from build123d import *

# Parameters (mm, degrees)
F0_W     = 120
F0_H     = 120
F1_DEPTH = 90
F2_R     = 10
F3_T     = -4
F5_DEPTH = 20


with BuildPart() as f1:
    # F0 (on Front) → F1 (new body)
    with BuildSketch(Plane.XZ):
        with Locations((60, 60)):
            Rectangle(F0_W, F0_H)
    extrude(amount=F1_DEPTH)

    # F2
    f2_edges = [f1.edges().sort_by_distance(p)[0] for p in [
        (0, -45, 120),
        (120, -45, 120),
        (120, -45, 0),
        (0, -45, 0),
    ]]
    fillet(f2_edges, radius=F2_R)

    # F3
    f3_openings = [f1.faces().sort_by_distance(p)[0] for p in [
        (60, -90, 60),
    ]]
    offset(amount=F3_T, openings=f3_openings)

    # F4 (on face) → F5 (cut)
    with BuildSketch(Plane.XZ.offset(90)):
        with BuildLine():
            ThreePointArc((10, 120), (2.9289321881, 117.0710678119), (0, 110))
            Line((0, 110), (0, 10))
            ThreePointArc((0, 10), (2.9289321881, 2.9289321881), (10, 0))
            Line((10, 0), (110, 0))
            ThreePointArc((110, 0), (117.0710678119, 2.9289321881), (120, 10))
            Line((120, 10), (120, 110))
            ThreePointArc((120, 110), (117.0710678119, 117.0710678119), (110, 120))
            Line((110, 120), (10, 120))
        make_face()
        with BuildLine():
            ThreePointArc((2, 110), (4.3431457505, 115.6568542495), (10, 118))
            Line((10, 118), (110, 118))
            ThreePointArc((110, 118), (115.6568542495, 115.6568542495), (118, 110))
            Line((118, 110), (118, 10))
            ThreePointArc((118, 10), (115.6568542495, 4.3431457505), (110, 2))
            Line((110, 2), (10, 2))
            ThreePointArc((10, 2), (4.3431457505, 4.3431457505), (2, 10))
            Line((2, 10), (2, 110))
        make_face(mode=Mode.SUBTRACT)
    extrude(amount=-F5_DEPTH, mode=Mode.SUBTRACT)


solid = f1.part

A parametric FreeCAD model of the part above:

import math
import FreeCAD as App
import Part
import Sketcher
Q = App.Units.Quantity


def edges_at(feature, points):
    """Names of the edges that pass closest to the given points."""
    edges = feature.Shape.Edges
    near = lambda p: min(range(len(edges)), key=lambda i: edges[i].distToShape(Part.Vertex(*p))[0])
    return sorted({f"Edge{near(p) + 1}" for p in points})


def faces_at(feature, points):
    """Names of the faces that lie closest to the given points."""
    faces = feature.Shape.Faces
    near = lambda p: min(range(len(faces)), key=lambda i: faces[i].distToShape(Part.Vertex(*p))[0])
    return sorted({f"Face{near(p) + 1}" for p in points})

doc = App.newDocument("Part")
body = doc.addObject("PartDesign::Body", "Body")

# Sketch on XZ plane
sketch1 = doc.addObject("Sketcher::SketchObject", "Sketch")
body.addObject(sketch1)
sketch1.AttachmentSupport = (doc.XZ_Plane, [""])
sketch1.MapMode = "FlatFace"
sketch1.addGeometry(Part.LineSegment(App.Vector(0, 120, 0), App.Vector(0, 0, 0)), False)
sketch1.addGeometry(Part.LineSegment(App.Vector(0, 0, 0), App.Vector(120, 0, 0)), False)
sketch1.addGeometry(Part.LineSegment(App.Vector(120, 0, 0), App.Vector(120, 120, 0)), False)
sketch1.addGeometry(Part.LineSegment(App.Vector(120, 120, 0), App.Vector(0, 120, 0)), False)
sketch1.addConstraint(Sketcher.Constraint("Coincident", 0, 2, 1, 1))
sketch1.addConstraint(Sketcher.Constraint("Coincident", 1, 2, 2, 1))
sketch1.addConstraint(Sketcher.Constraint("Coincident", 2, 2, 3, 1))
sketch1.addConstraint(Sketcher.Constraint("Coincident", 3, 2, 0, 1))
sketch1.addConstraint(Sketcher.Constraint("Vertical", 0))
sketch1.addConstraint(Sketcher.Constraint("Horizontal", 1))
sketch1.addConstraint(Sketcher.Constraint("Vertical", 2))
sketch1.addConstraint(Sketcher.Constraint("Horizontal", 3))
sketch1.addConstraint(Sketcher.Constraint("Coincident", 0, 2, -1, 1))
sketch1.addConstraint(Sketcher.Constraint("Equal", 3, 0))
sketch1.addConstraint(Sketcher.Constraint("DistanceX", 1, 1, 1, 2, Q("120 mm")))
pad1 = doc.addObject("PartDesign::Pad", "Pad")
body.addObject(pad1)
pad1.Profile = sketch1
pad1.Length = 90
doc.recompute()

fillet = doc.addObject("PartDesign::Fillet", "Fillet")
body.addObject(fillet)
fillet.Base = (pad1, edges_at(pad1, [
    (0, -45, 120),
    (120, -45, 120),
    (120, -45, 0),
    (0, -45, 0),
]))
fillet.Radius = 10
doc.recompute()

thickness = doc.addObject("PartDesign::Thickness", "Thickness")
body.addObject(thickness)
thickness.Base = (fillet, faces_at(fillet, [(60, -90, 60)]))
thickness.Value = 4
thickness.Reversed = True
thickness.Join = "Arc"

# Sketch on XZ plane
sketch2 = doc.addObject("Sketcher::SketchObject", "Sketch001")
body.addObject(sketch2)
sketch2.AttachmentSupport = (doc.XZ_Plane, [""])
sketch2.MapMode = "FlatFace"
sketch2.AttachmentOffset = App.Placement(App.Vector(0, 0, 90), App.Rotation())
sketch2.addGeometry(Part.ArcOfCircle(Part.Circle(App.Vector(10, 110, 0), App.Vector(0, 0, 1), 10), math.radians(90), math.radians(180)), False)
sketch2.addGeometry(Part.LineSegment(App.Vector(0, 110, 0), App.Vector(0, 10, 0)), False)
sketch2.addGeometry(Part.ArcOfCircle(Part.Circle(App.Vector(10, 10, 0), App.Vector(0, 0, 1), 10), math.radians(180), math.radians(270)), False)
sketch2.addGeometry(Part.LineSegment(App.Vector(10, 0, 0), App.Vector(110, 0, 0)), False)
sketch2.addGeometry(Part.ArcOfCircle(Part.Circle(App.Vector(110, 10, 0), App.Vector(0, 0, 1), 10), math.radians(-90), math.radians(0)), False)
sketch2.addGeometry(Part.LineSegment(App.Vector(120, 10, 0), App.Vector(120, 110, 0)), False)
sketch2.addGeometry(Part.ArcOfCircle(Part.Circle(App.Vector(110, 110, 0), App.Vector(0, 0, 1), 10), math.radians(0), math.radians(90)), False)
sketch2.addGeometry(Part.LineSegment(App.Vector(110, 120, 0), App.Vector(10, 120, 0)), False)
sketch2.addGeometry(Part.LineSegment(App.Vector(2, 10, 0), App.Vector(2, 110, 0)), False)
sketch2.addGeometry(Part.ArcOfCircle(Part.Circle(App.Vector(10, 110, 0), App.Vector(0, 0, 1), 8), math.radians(90), math.radians(180)), False)
sketch2.addGeometry(Part.LineSegment(App.Vector(10, 118, 0), App.Vector(110, 118, 0)), False)
sketch2.addGeometry(Part.ArcOfCircle(Part.Circle(App.Vector(110, 110, 0), App.Vector(0, 0, 1), 8), math.radians(0), math.radians(90)), False)
sketch2.addGeometry(Part.LineSegment(App.Vector(118, 110, 0), App.Vector(118, 10, 0)), False)
sketch2.addGeometry(Part.ArcOfCircle(Part.Circle(App.Vector(110, 10, 0), App.Vector(0, 0, 1), 8), math.radians(-90), math.radians(0)), False)
sketch2.addGeometry(Part.LineSegment(App.Vector(110, 2, 0), App.Vector(10, 2, 0)), False)
sketch2.addGeometry(Part.ArcOfCircle(Part.Circle(App.Vector(10, 10, 0), App.Vector(0, 0, 1), 8), math.radians(180), math.radians(270)), False)
sketch2.addConstraint(Sketcher.Constraint("Tangent", 0, 2, 1, 1))
sketch2.addConstraint(Sketcher.Constraint("Tangent", 1, 2, 2, 1))
sketch2.addConstraint(Sketcher.Constraint("Tangent", 2, 2, 3, 1))
sketch2.addConstraint(Sketcher.Constraint("Tangent", 3, 2, 4, 1))
sketch2.addConstraint(Sketcher.Constraint("Tangent", 4, 2, 5, 1))
sketch2.addConstraint(Sketcher.Constraint("Tangent", 5, 2, 6, 1))
sketch2.addConstraint(Sketcher.Constraint("Tangent", 6, 2, 7, 1))
sketch2.addConstraint(Sketcher.Constraint("Tangent", 7, 2, 0, 1))
sketch2.addConstraint(Sketcher.Constraint("Tangent", 8, 2, 9, 2))
sketch2.addConstraint(Sketcher.Constraint("Tangent", 9, 1, 10, 1))
sketch2.addConstraint(Sketcher.Constraint("Tangent", 10, 2, 11, 2))
sketch2.addConstraint(Sketcher.Constraint("Tangent", 11, 1, 12, 1))
sketch2.addConstraint(Sketcher.Constraint("Tangent", 12, 2, 13, 2))
sketch2.addConstraint(Sketcher.Constraint("Tangent", 13, 1, 14, 1))
sketch2.addConstraint(Sketcher.Constraint("Tangent", 14, 2, 15, 2))
sketch2.addConstraint(Sketcher.Constraint("Tangent", 15, 1, 8, 1))
sketch2.addConstraint(Sketcher.Constraint("Vertical", 1))
sketch2.addConstraint(Sketcher.Constraint("Horizontal", 3))
sketch2.addConstraint(Sketcher.Constraint("Vertical", 5))
sketch2.addConstraint(Sketcher.Constraint("Horizontal", 7))
sketch2.addConstraint(Sketcher.Constraint("Vertical", 8))
sketch2.addConstraint(Sketcher.Constraint("Horizontal", 10))
sketch2.addConstraint(Sketcher.Constraint("Vertical", 12))
sketch2.addConstraint(Sketcher.Constraint("Horizontal", 14))
sketch2.addConstraint(Sketcher.Constraint("Coincident", 9, 3, 0, 3))
sketch2.addConstraint(Sketcher.Constraint("Coincident", 11, 3, 6, 3))
sketch2.addConstraint(Sketcher.Constraint("Coincident", 13, 3, 4, 3))
sketch2.addConstraint(Sketcher.Constraint("Equal", 0, 2))
sketch2.addConstraint(Sketcher.Constraint("Equal", 2, 4))
sketch2.addConstraint(Sketcher.Constraint("Equal", 4, 6))
sketch2.addConstraint(Sketcher.Constraint("Equal", 13, 15))
sketch2.addConstraint(Sketcher.Constraint("PointOnObject", 0, 2, -2))
sketch2.addConstraint(Sketcher.Constraint("PointOnObject", 2, 2, -1))
sketch2.addConstraint(Sketcher.Constraint("Equal", 14, 1))
sketch2.addConstraint(Sketcher.Constraint("Radius", 0, Q("10 mm")))
sketch2.addConstraint(Sketcher.Constraint("Radius", 9, Q("8 mm")))
sketch2.addConstraint(Sketcher.Constraint("DistanceX", 3, 1, 3, 2, Q("100 mm")))
pocket1 = doc.addObject("PartDesign::Pocket", "Pocket")
body.addObject(pocket1)
pocket1.Profile = sketch2
pocket1.Length = 20

doc.recompute()
